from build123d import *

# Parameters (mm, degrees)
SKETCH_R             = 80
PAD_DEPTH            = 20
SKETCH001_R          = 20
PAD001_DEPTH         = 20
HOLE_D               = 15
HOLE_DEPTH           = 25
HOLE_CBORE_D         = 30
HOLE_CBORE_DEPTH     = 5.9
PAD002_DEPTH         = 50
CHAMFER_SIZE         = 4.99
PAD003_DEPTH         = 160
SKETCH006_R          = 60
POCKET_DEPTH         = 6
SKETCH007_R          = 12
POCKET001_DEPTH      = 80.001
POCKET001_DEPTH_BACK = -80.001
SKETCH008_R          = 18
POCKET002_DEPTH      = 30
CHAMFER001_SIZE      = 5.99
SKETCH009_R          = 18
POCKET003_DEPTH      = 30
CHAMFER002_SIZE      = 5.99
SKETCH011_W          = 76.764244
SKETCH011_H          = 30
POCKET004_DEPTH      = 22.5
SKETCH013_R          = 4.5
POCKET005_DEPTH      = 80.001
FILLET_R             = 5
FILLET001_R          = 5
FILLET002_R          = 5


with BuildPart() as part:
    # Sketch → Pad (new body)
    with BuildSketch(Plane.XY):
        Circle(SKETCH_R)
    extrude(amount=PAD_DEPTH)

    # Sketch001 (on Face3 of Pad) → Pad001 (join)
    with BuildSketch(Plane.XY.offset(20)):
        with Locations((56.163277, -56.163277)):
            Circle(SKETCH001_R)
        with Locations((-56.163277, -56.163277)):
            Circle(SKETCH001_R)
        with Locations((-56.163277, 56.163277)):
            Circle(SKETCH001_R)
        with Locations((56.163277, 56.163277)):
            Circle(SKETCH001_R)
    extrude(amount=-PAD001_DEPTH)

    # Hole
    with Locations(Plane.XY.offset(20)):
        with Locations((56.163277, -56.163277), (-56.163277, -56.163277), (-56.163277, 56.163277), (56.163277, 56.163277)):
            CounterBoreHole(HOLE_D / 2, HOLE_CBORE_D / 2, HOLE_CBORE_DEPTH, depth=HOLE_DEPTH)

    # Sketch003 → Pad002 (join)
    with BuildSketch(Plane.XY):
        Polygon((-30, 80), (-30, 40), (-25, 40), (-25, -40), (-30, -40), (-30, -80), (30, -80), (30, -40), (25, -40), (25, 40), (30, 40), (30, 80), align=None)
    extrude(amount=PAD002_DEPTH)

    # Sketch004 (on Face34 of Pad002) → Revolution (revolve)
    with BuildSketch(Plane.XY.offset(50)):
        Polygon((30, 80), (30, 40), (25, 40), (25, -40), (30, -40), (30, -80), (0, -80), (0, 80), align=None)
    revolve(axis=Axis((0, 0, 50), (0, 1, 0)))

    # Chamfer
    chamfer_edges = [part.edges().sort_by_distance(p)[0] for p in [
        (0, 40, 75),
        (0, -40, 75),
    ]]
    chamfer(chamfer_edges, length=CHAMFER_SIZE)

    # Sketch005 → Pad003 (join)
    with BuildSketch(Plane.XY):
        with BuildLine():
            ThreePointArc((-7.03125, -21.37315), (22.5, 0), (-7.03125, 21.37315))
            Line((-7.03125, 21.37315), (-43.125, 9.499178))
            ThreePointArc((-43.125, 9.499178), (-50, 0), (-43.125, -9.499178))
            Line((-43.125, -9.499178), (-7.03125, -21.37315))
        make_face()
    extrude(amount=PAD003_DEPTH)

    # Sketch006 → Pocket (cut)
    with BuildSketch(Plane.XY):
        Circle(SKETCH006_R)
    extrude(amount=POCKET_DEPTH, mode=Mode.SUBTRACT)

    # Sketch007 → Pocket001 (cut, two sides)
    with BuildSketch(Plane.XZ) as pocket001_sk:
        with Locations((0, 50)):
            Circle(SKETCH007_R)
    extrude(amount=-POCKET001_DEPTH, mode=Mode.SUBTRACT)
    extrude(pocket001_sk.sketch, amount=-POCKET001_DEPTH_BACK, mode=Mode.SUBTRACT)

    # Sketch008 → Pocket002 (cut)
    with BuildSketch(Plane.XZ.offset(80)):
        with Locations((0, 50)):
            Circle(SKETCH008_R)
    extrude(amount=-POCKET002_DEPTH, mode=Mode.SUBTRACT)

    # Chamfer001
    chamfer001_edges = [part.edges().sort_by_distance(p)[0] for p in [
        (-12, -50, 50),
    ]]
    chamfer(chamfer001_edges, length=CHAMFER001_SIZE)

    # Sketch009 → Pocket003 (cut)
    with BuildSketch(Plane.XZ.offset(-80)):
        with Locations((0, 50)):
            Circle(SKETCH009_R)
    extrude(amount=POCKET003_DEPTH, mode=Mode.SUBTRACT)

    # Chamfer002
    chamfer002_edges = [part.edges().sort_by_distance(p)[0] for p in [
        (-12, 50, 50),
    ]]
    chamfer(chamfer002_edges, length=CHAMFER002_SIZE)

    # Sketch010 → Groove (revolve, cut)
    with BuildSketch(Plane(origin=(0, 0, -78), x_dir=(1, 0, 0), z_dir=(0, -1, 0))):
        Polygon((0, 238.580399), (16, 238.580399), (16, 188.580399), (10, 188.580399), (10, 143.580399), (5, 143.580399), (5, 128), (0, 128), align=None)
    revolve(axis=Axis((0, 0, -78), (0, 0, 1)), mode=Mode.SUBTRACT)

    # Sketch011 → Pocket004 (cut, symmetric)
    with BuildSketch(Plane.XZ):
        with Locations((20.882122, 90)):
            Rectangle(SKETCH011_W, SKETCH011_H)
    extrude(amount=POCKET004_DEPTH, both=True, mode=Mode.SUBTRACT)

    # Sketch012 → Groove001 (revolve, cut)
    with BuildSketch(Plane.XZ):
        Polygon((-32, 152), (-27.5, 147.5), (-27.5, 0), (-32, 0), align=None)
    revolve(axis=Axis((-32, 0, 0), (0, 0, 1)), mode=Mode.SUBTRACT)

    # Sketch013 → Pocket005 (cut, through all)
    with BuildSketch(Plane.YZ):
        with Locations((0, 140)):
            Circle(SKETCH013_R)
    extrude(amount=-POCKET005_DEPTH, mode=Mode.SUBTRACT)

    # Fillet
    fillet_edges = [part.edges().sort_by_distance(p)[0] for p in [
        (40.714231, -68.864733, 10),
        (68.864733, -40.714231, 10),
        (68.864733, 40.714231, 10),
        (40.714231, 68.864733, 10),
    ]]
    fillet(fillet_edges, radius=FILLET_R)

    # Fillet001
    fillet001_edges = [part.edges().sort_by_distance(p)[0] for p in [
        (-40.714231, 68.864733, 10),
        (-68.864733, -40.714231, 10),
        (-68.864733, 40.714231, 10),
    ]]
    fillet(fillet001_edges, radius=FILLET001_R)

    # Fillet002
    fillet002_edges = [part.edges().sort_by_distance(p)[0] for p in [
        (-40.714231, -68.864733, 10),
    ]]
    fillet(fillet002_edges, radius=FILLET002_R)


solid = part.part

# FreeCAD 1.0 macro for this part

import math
import FreeCAD as App
import Part
import Sketcher
from FreeCAD import Vector
Q = App.Units.Quantity


def edges_at(feature, points):
    """Names of the edges that pass closest to the given points."""
    edges = feature.Shape.Edges
    near = lambda p: min(range(len(edges)), key=lambda i: edges[i].distToShape(Part.Vertex(*p))[0])
    return sorted({f"Edge{near(p) + 1}" for p in points})

doc = App.newDocument("Part")
body = doc.addObject("PartDesign::Body", "Body")

# Sketch on XY plane
sketch1 = body.newObject("Sketcher::SketchObject", "Sketch")
sketch1.AttachmentSupport = (doc.getObject("XY_Plane"), [""])
sketch1.MapMode = "FlatFace"
sketch1.addGeometry(Part.Circle(Vector(0, 0, 0), Vector(0, 0, 1), 80), False)
sketch1.addConstraint([
    Sketcher.Constraint("Coincident", 0, 3, -1, 1),
    Sketcher.Constraint("Diameter", 0, Q("160 mm")),
])
pad1 = body.newObject("PartDesign::Pad", "Pad")
pad1.Profile = sketch1
pad1.Length = 20

# Sketch on XY plane
sketch2 = body.newObject("Sketcher::SketchObject", "Sketch001")
sketch2.AttachmentSupport = (doc.getObject("XY_Plane"), [""])
sketch2.MapMode = "FlatFace"
sketch2.AttachmentOffset = App.Placement(Vector(0, 0, 20), App.Rotation())
sketch2.addGeometry([
    Part.Circle(Vector(56.163277, -56.163277, 0), Vector(0, 0, 1), 20),
    Part.Circle(Vector(-56.163277, -56.163277, 0), Vector(0, 0, 1), 20),
    Part.Circle(Vector(-56.163277, 56.163277, 0), Vector(0, 0, 1), 20),
    Part.Circle(Vector(56.163277, 56.163277, 0), Vector(0, 0, 1), 20),
], False)
sketch2.addConstraint([
    Sketcher.Constraint("Equal", 0, 1),
    Sketcher.Constraint("Equal", 1, 2),
    Sketcher.Constraint("Equal", 2, 3),
    Sketcher.Constraint("Symmetric", 0, 3, 2, 3, -1, 1),
    Sketcher.Constraint("Symmetric", 1, 3, 3, 3, -1, 1),
    Sketcher.Constraint("Symmetric", 0, 3, 1, 3, -2),
    Sketcher.Constraint("Diameter", 0, Q("40 mm")),
    Sketcher.Constraint("DistanceX", -1, 1, 0, 3, Q("56.163277 mm")),
    Sketcher.Constraint("DistanceY", 0, 3, -1, 1, Q("56.163277 mm")),
])
pad2 = body.newObject("PartDesign::Pad", "Pad001")
pad2.Profile = sketch2
pad2.Length = 20
pad2.Reversed = True

# Sketch on XY plane
sketch3 = body.newObject("Sketcher::SketchObject", "Sketch002")
sketch3.AttachmentSupport = (doc.getObject("XY_Plane"), [""])
sketch3.MapMode = "FlatFace"
sketch3.AttachmentOffset = App.Placement(Vector(0, 0, 20), App.Rotation())
sketch3.addGeometry([
    Part.Circle(Vector(56.163277, -56.163277, 0), Vector(0, 0, 1), 7.5),
    Part.Circle(Vector(-56.163277, -56.163277, 0), Vector(0, 0, 1), 7.5),
    Part.Circle(Vector(-56.163277, 56.163277, 0), Vector(0, 0, 1), 7.5),
    Part.Circle(Vector(56.163277, 56.163277, 0), Vector(0, 0, 1), 7.5),
], False)
sketch3.addConstraint([
    Sketcher.Constraint("Equal", 0, 1),
    Sketcher.Constraint("Equal", 1, 2),
    Sketcher.Constraint("Equal", 2, 3),
    Sketcher.Constraint("Symmetric", 0, 3, 2, 3, -1, 1),
    Sketcher.Constraint("Symmetric", 1, 3, 3, 3, -1, 1),
    Sketcher.Constraint("Symmetric", 0, 3, 1, 3, -2),
    Sketcher.Constraint("Diameter", 0, Q("15 mm")),
    Sketcher.Constraint("DistanceX", -1, 1, 0, 3, Q("56.163277 mm")),
    Sketcher.Constraint("DistanceY", 0, 3, -1, 1, Q("56.163277 mm")),
])
doc.recompute()
hole = body.newObject("PartDesign::Hole", "Hole")
hole.Profile = sketch3
hole.ThreadType = "None"
hole.Diameter = 15
hole.DepthType = "Dimension"
hole.Depth = 25
hole.DrillPoint = "Flat"
hole.HoleCutType = "Counterbore"
hole.HoleCutDiameter = 30
hole.HoleCutDepth = 5.9

# Sketch on XY plane
sketch4 = body.newObject("Sketcher::SketchObject", "Sketch003")
sketch4.AttachmentSupport = (doc.getObject("XY_Plane"), [""])
sketch4.MapMode = "FlatFace"
sketch4.addGeometry([
    Part.LineSegment(Vector(-30, 80, 0), Vector(-30, 40, 0)),  # 0
    Part.LineSegment(Vector(-30, 40, 0), Vector(-25, 40, 0)),  # 1
    Part.LineSegment(Vector(-25, 40, 0), Vector(-25, -40, 0)),  # 2
    Part.LineSegment(Vector(-25, -40, 0), Vector(-30, -40, 0)),  # 3
    Part.LineSegment(Vector(-30, -40, 0), Vector(-30, -80, 0)),  # 4
    Part.LineSegment(Vector(-30, -80, 0), Vector(30, -80, 0)),  # 5
    Part.LineSegment(Vector(30, -80, 0), Vector(30, -40, 0)),  # 6
    Part.LineSegment(Vector(30, -40, 0), Vector(25, -40, 0)),  # 7
    Part.LineSegment(Vector(25, -40, 0), Vector(25, 40, 0)),  # 8
    Part.LineSegment(Vector(25, 40, 0), Vector(30, 40, 0)),  # 9
    Part.LineSegment(Vector(30, 40, 0), Vector(30, 80, 0)),  # 10
    Part.LineSegment(Vector(30, 80, 0), Vector(-30, 80, 0)),  # 11
], False)
sketch4.addConstraint([
    Sketcher.Constraint("Coincident", 0, 2, 1, 1),
    Sketcher.Constraint("Coincident", 1, 2, 2, 1),
    Sketcher.Constraint("Coincident", 2, 2, 3, 1),
    Sketcher.Constraint("Coincident", 3, 2, 4, 1),
    Sketcher.Constraint("Coincident", 4, 2, 5, 1),
    Sketcher.Constraint("Coincident", 5, 2, 6, 1),
    Sketcher.Constraint("Coincident", 6, 2, 7, 1),
    Sketcher.Constraint("Coincident", 7, 2, 8, 1),
    Sketcher.Constraint("Coincident", 8, 2, 9, 1),
    Sketcher.Constraint("Coincident", 9, 2, 10, 1),
    Sketcher.Constraint("Coincident", 10, 2, 11, 1),
    Sketcher.Constraint("Coincident", 11, 2, 0, 1),
    Sketcher.Constraint("Vertical", 0),
    Sketcher.Constraint("Horizontal", 1),
    Sketcher.Constraint("Vertical", 2),
    Sketcher.Constraint("Horizontal", 3),
    Sketcher.Constraint("Vertical", 4),
    Sketcher.Constraint("Horizontal", 5),
    Sketcher.Constraint("Vertical", 6),
    Sketcher.Constraint("Horizontal", 7),
    Sketcher.Constraint("Vertical", 8),
    Sketcher.Constraint("Horizontal", 9),
    Sketcher.Constraint("Vertical", 10),
    Sketcher.Constraint("Horizontal", 11),
    Sketcher.Constraint("Symmetric", 0, 2, 6, 2, -1, 1),
    Sketcher.Constraint("Symmetric", 2, 2, 8, 2, -1, 1),
    Sketcher.Constraint("Symmetric", 4, 2, 10, 2, -1, 1),
    Sketcher.Constraint("Symmetric", 3, 2, 6, 2, -2),
    Sketcher.Constraint("DistanceX", 1, 1, 1, 2, Q("5 mm")),
    Sketcher.Constraint("DistanceX", 5, 1, 5, 2, Q("60 mm")),
    Sketcher.Constraint("DistanceY", 0, 2, 0, 1, Q("40 mm")),
    Sketcher.Constraint("DistanceY", 2, 2, 2, 1, Q("80 mm")),
])
pad3 = body.newObject("PartDesign::Pad", "Pad002")
pad3.Profile = sketch4
pad3.Length = 50

# Sketch on XY plane
sketch5 = body.newObject("Sketcher::SketchObject", "Sketch004")
sketch5.AttachmentSupport = (doc.getObject("XY_Plane"), [""])
sketch5.MapMode = "FlatFace"
sketch5.AttachmentOffset = App.Placement(Vector(0, 0, 50), App.Rotation())
sketch5.addGeometry([
    Part.LineSegment(Vector(30, 40, 0), Vector(30, 80, 0)),  # 0
    Part.LineSegment(Vector(30, 80, 0), Vector(0, 80, 0)),  # 1
    Part.LineSegment(Vector(0, 80, 0), Vector(0, -80, 0)),  # 2
    Part.LineSegment(Vector(0, -80, 0), Vector(30, -80, 0)),  # 3
    Part.LineSegment(Vector(30, -80, 0), Vector(30, -40, 0)),  # 4
    Part.LineSegment(Vector(30, -40, 0), Vector(25, -40, 0)),  # 5
    Part.LineSegment(Vector(25, -40, 0), Vector(25, 40, 0)),  # 6
    Part.LineSegment(Vector(25, 40, 0), Vector(30, 40, 0)),  # 7
], False)
sketch5.addConstraint([
    Sketcher.Constraint("Coincident", 0, 2, 1, 1),
    Sketcher.Constraint("Coincident", 1, 2, 2, 1),
    Sketcher.Constraint("Coincident", 2, 2, 3, 1),
    Sketcher.Constraint("Coincident", 3, 2, 4, 1),
    Sketcher.Constraint("Coincident", 4, 2, 5, 1),
    Sketcher.Constraint("Coincident", 5, 2, 6, 1),
    Sketcher.Constraint("Coincident", 6, 2, 7, 1),
    Sketcher.Constraint("Coincident", 7, 2, 0, 1),
    Sketcher.Constraint("Vertical", 0),
    Sketcher.Constraint("Horizontal", 1),
    Sketcher.Constraint("Vertical", 2),
    Sketcher.Constraint("Horizontal", 3),
    Sketcher.Constraint("Vertical", 4),
    Sketcher.Constraint("Horizontal", 5),
    Sketcher.Constraint("Vertical", 6),
    Sketcher.Constraint("Horizontal", 7),
    Sketcher.Constraint("Symmetric", 1, 2, 2, 2, -1, 1),
    Sketcher.Constraint("Symmetric", 4, 2, 7, 2, -1),
    Sketcher.Constraint("DistanceX", 1, 2, 1, 1, Q("30 mm")),
    Sketcher.Constraint("DistanceX", 5, 2, 5, 1, Q("5 mm")),
    Sketcher.Constraint("DistanceY", 0, 1, 0, 2, Q("40 mm")),
    Sketcher.Constraint("DistanceY", 2, 2, 2, 1, Q("160 mm")),
])
revolution = body.newObject("PartDesign::Revolution", "Revolution")
revolution.Profile = sketch5
revolution.ReferenceAxis = (sketch5, ["V_Axis"])
revolution.Angle = 360
doc.recompute()

chamfer = body.newObject("PartDesign::Chamfer", "Chamfer")
chamfer.Base = (revolution, edges_at(revolution, [(0, 40, 75), (0, -40, 75)]))
chamfer.Size = 4.99

# Sketch on XY plane
sketch6 = body.newObject("Sketcher::SketchObject", "Sketch005")
sketch6.AttachmentSupport = (doc.getObject("XY_Plane"), [""])
sketch6.MapMode = "FlatFace"
sketch6.addGeometry([
    Part.ArcOfCircle(Part.Circle(Vector(0, 0, 0), Vector(0, 0, 1), 22.5), math.radians(-108.209956), math.radians(108.209956)),
    Part.LineSegment(Vector(-7.03125, 21.37315, 0), Vector(-43.125, 9.499178, 0)),
    Part.ArcOfCircle(Part.Circle(Vector(-39.999999, 0, 0), Vector(0, 0, 1), 10.000001), math.radians(108.209959), math.radians(251.790041)),
    Part.LineSegment(Vector(-43.125, -9.499178, 0), Vector(-7.03125, -21.37315, 0)),
], False)
sketch6.addConstraint([
    Sketcher.Constraint("Tangent", 0, 2, 1, 1),
    Sketcher.Constraint("Tangent", 1, 2, 2, 1),
    Sketcher.Constraint("Tangent", 2, 2, 3, 1),
    Sketcher.Constraint("Tangent", 3, 2, 0, 1),
    Sketcher.Constraint("Coincident", 0, 3, -1, 1),
    Sketcher.Constraint("PointOnObject", 2, 3, -1),
    Sketcher.Constraint("Radius", 2, Q("10.000001 mm")),
    Sketcher.Constraint("Radius", 0, Q("22.5 mm")),
    Sketcher.Constraint("DistanceX", 2, 3, -1, 1, Q("39.999999 mm")),
])
pad4 = body.newObject("PartDesign::Pad", "Pad003")
pad4.Profile = sketch6
pad4.Length = 160

# Sketch on XY plane
sketch7 = body.newObject("Sketcher::SketchObject", "Sketch006")
sketch7.AttachmentSupport = (doc.getObject("XY_Plane"), [""])
sketch7.MapMode = "FlatFace"
sketch7.addGeometry(Part.Circle(Vector(0, 0, 0), Vector(0, 0, 1), 60), False)
sketch7.addConstraint([
    Sketcher.Constraint("Coincident", 0, 3, -1, 1),
    Sketcher.Constraint("Diameter", 0, Q("120 mm")),
])
pocket1 = body.newObject("PartDesign::Pocket", "Pocket")
pocket1.Profile = sketch7
pocket1.Length = 6
pocket1.Reversed = True

# Sketch on XZ plane
sketch8 = body.newObject("Sketcher::SketchObject", "Sketch007")
sketch8.AttachmentSupport = (doc.getObject("XZ_Plane"), [""])
sketch8.MapMode = "FlatFace"
sketch8.addGeometry(Part.Circle(Vector(0, 50, 0), Vector(0, 0, 1), 12), False)
sketch8.addConstraint([
    Sketcher.Constraint("PointOnObject", 0, 3, -2),
    Sketcher.Constraint("Diameter", 0, Q("24 mm")),
    Sketcher.Constraint("DistanceY", -1, 1, 0, 3, Q("50 mm")),
])
pocket2 = body.newObject("PartDesign::Pocket", "Pocket001")
pocket2.Profile = sketch8
pocket2.Type = "ThroughAll"
pocket2.Midplane = True

# Sketch on XZ plane
sketch9 = body.newObject("Sketcher::SketchObject", "Sketch008")
sketch9.AttachmentSupport = (doc.getObject("XZ_Plane"), [""])
sketch9.MapMode = "FlatFace"
sketch9.AttachmentOffset = App.Placement(Vector(0, 0, 80), App.Rotation())
sketch9.addGeometry(Part.Circle(Vector(0, 50, 0), Vector(0, 0, 1), 18), False)
sketch9.addConstraint([
    Sketcher.Constraint("PointOnObject", 0, 3, -2),
    Sketcher.Constraint("Diameter", 0, Q("36 mm")),
    Sketcher.Constraint("DistanceY", -1, 1, 0, 3, Q("50 mm")),
])
pocket3 = body.newObject("PartDesign::Pocket", "Pocket002")
pocket3.Profile = sketch9
pocket3.Length = 30
doc.recompute()

chamfer2 = body.newObject("PartDesign::Chamfer", "Chamfer001")
chamfer2.Base = (pocket3, edges_at(pocket3, [(-12, -50, 50)]))
chamfer2.Size = 5.99

# Sketch on XZ plane
sketch10 = body.newObject("Sketcher::SketchObject", "Sketch009")
sketch10.AttachmentSupport = (doc.getObject("XZ_Plane"), [""])
sketch10.MapMode = "FlatFace"
sketch10.AttachmentOffset = App.Placement(Vector(0, 0, -80), App.Rotation())
sketch10.addGeometry(Part.Circle(Vector(0, 50, 0), Vector(0, 0, 1), 18), False)
sketch10.addConstraint([
    Sketcher.Constraint("PointOnObject", 0, 3, -2),
    Sketcher.Constraint("Diameter", 0, Q("36 mm")),
    Sketcher.Constraint("DistanceY", -1, 1, 0, 3, Q("50 mm")),
])
pocket4 = body.newObject("PartDesign::Pocket", "Pocket003")
pocket4.Profile = sketch10
pocket4.Length = 30
pocket4.Reversed = True
doc.recompute()

chamfer3 = body.newObject("PartDesign::Chamfer", "Chamfer002")
chamfer3.Base = (pocket4, edges_at(pocket4, [(-12, 50, 50)]))
chamfer3.Size = 5.99

# Sketch on XZ plane
sketch11 = body.newObject("Sketcher::SketchObject", "Sketch010")
sketch11.AttachmentSupport = (doc.getObject("XZ_Plane"), [""])
sketch11.MapMode = "FlatFace"
sketch11.addGeometry([
    Part.LineSegment(Vector(16, 160.580399, 0), Vector(0, 160.580399, 0)),  # 0
    Part.LineSegment(Vector(0, 160.580399, 0), Vector(0, 50, 0)),  # 1
    Part.LineSegment(Vector(0, 50, 0), Vector(5, 50, 0)),  # 2
    Part.LineSegment(Vector(5, 50, 0), Vector(5, 65.580399, 0)),  # 3
    Part.LineSegment(Vector(5, 65.580399, 0), Vector(10, 65.580399, 0)),  # 4
    Part.LineSegment(Vector(10, 65.580399, 0), Vector(10, 110.580399, 0)),  # 5
    Part.LineSegment(Vector(10, 110.580399, 0), Vector(16, 110.580399, 0)),  # 6
    Part.LineSegment(Vector(16, 110.580399, 0), Vector(16, 160.580399, 0)),  # 7
], False)
sketch11.addConstraint([
    Sketcher.Constraint("Coincident", 0, 2, 1, 1),
    Sketcher.Constraint("Coincident", 1, 2, 2, 1),
    Sketcher.Constraint("Coincident", 2, 2, 3, 1),
    Sketcher.Constraint("Coincident", 3, 2, 4, 1),
    Sketcher.Constraint("Coincident", 4, 2, 5, 1),
    Sketcher.Constraint("Coincident", 5, 2, 6, 1),
    Sketcher.Constraint("Coincident", 6, 2, 7, 1),
    Sketcher.Constraint("Coincident", 7, 2, 0, 1),
    Sketcher.Constraint("Horizontal", 0),
    Sketcher.Constraint("Vertical", 1),
    Sketcher.Constraint("Horizontal", 2),
    Sketcher.Constraint("Vertical", 3),
    Sketcher.Constraint("Horizontal", 4),
    Sketcher.Constraint("Vertical", 5),
    Sketcher.Constraint("Horizontal", 6),
    Sketcher.Constraint("Vertical", 7),
    Sketcher.Constraint("PointOnObject", 0, 2, -2),
    Sketcher.Constraint("Equal", 2, 4),
    Sketcher.Constraint("DistanceX", 0, 2, 0, 1, Q("16 mm")),
    Sketcher.Constraint("DistanceX", 2, 1, 2, 2, Q("5 mm")),
    Sketcher.Constraint("DistanceY", 5, 1, 5, 2, Q("45 mm")),
    Sketcher.Constraint("DistanceY", 7, 1, 7, 2, Q("50 mm")),
    Sketcher.Constraint("DistanceY", -1, 1, 1, 2, Q("50 mm")),
    Sketcher.Constraint("DistanceY", 1, 2, 1, 1, Q("110.580399 mm")),
])
groove = body.newObject("PartDesign::Groove", "Groove")
groove.Profile = sketch11
groove.ReferenceAxis = (sketch11, ["V_Axis"])
groove.Angle = 360

# Sketch on XZ plane
sketch12 = body.newObject("Sketcher::SketchObject", "Sketch011")
sketch12.AttachmentSupport = (doc.getObject("XZ_Plane"), [""])
sketch12.MapMode = "FlatFace"
sketch12.addGeometry([
    Part.LineSegment(Vector(-17.5, 105, 0), Vector(-17.5, 75, 0)),
    Part.LineSegment(Vector(-17.5, 75, 0), Vector(59.264244, 75, 0)),
    Part.LineSegment(Vector(59.264244, 75, 0), Vector(59.264244, 105, 0)),
    Part.LineSegment(Vector(59.264244, 105, 0), Vector(-17.5, 105, 0)),
], False)
sketch12.addConstraint([
    Sketcher.Constraint("Coincident", 0, 2, 1, 1),
    Sketcher.Constraint("Coincident", 1, 2, 2, 1),
    Sketcher.Constraint("Coincident", 2, 2, 3, 1),
    Sketcher.Constraint("Coincident", 3, 2, 0, 1),
    Sketcher.Constraint("Vertical", 0),
    Sketcher.Constraint("Horizontal", 1),
    Sketcher.Constraint("Vertical", 2),
    Sketcher.Constraint("Horizontal", 3),
    Sketcher.Constraint("DistanceY", 0, 2, 0, 1, Q("30 mm")),
    Sketcher.Constraint("DistanceY", -1, 1, 0, 2, Q("75 mm")),
    Sketcher.Constraint("DistanceX", 0, 2, -1, 1, Q("17.5 mm")),
    Sketcher.Constraint("DistanceX", 1, 1, 1, 2, Q("76.764244 mm")),
])
pocket5 = body.newObject("PartDesign::Pocket", "Pocket004")
pocket5.Profile = sketch12
pocket5.Length = 45
pocket5.Midplane = True

# Sketch on XZ plane
sketch13 = body.newObject("Sketcher::SketchObject", "Sketch012")
sketch13.AttachmentSupport = (doc.getObject("XZ_Plane"), [""])
sketch13.MapMode = "FlatFace"
sketch13.addGeometry([
    Part.LineSegment(Vector(-27.5, 147.5, 0), Vector(-32, 152, 0)),
    Part.LineSegment(Vector(-32, 152, 0), Vector(-32, 0, 0)),
    Part.LineSegment(Vector(-32, 0, 0), Vector(-27.5, 0, 0)),
    Part.LineSegment(Vector(-27.5, 0, 0), Vector(-27.5, 147.5, 0)),
], False)
sketch13.addGeometry(Part.LineSegment(Vector(-32, 0, 0), Vector(-32, 152, 0)), True)  # axis
sketch13.addConstraint([
    Sketcher.Constraint("Coincident", 0, 2, 1, 1),
    Sketcher.Constraint("Coincident", 1, 2, 2, 1),
    Sketcher.Constraint("Coincident", 2, 2, 3, 1),
    Sketcher.Constraint("Coincident", 3, 2, 0, 1),
    Sketcher.Constraint("Vertical", 1),
    Sketcher.Constraint("Horizontal", 2),
    Sketcher.Constraint("Vertical", 3),
    Sketcher.Constraint("Vertical", 4),
    Sketcher.Constraint("Coincident", 4, 1, 1, 2),
    Sketcher.Constraint("PointOnObject", 1, 2, -1),
    Sketcher.Constraint("Equal", 1, 4),
    Sketcher.Constraint("DistanceY", 1, 2, 1, 1, Q("152 mm")),
    Sketcher.Constraint("Angle", 0, Q("135 deg")),
    Sketcher.Constraint("DistanceX", 2, 1, 2, 2, Q("4.5 mm")),
    Sketcher.Constraint("DistanceX", 0, 2, -1, 1, Q("32 mm")),
])
groove2 = body.newObject("PartDesign::Groove", "Groove001")
groove2.Profile = sketch13
groove2.ReferenceAxis = (sketch13, ["Axis0"])
groove2.Angle = 360

# Sketch on YZ plane
sketch14 = body.newObject("Sketcher::SketchObject", "Sketch013")
sketch14.AttachmentSupport = (doc.getObject("YZ_Plane"), [""])
sketch14.MapMode = "FlatFace"
sketch14.addGeometry(Part.Circle(Vector(0, 140, 0), Vector(0, 0, 1), 4.5), False)
sketch14.addConstraint([
    Sketcher.Constraint("PointOnObject", 0, 3, -2),
    Sketcher.Constraint("Diameter", 0, Q("9 mm")),
    Sketcher.Constraint("DistanceY", -1, 1, 0, 3, Q("140 mm")),
])
pocket6 = body.newObject("PartDesign::Pocket", "Pocket005")
pocket6.Profile = sketch14
pocket6.Type = "ThroughAll"
doc.recompute()

fillet = body.newObject("PartDesign::Fillet", "Fillet")
fillet.Base = (pocket6, edges_at(pocket6, [
    (40.714, -68.865, 10),
    (68.865, -40.714, 10),
    (68.865, 40.714, 10),
    (40.714, 68.865, 10),
]))
fillet.Radius = 5
doc.recompute()

fillet2 = body.newObject("PartDesign::Fillet", "Fillet001")
fillet2.Base = (fillet, edges_at(fillet, [(-40.714, 68.865, 10), (-68.865, -40.714, 10), (-68.865, 40.714, 10)]))
fillet2.Radius = 5
doc.recompute()

fillet3 = body.newObject("PartDesign::Fillet", "Fillet002")
fillet3.Base = (fillet2, edges_at(fillet2, [(-40.714, -68.865, 10)]))
fillet3.Radius = 5

doc.recompute()
